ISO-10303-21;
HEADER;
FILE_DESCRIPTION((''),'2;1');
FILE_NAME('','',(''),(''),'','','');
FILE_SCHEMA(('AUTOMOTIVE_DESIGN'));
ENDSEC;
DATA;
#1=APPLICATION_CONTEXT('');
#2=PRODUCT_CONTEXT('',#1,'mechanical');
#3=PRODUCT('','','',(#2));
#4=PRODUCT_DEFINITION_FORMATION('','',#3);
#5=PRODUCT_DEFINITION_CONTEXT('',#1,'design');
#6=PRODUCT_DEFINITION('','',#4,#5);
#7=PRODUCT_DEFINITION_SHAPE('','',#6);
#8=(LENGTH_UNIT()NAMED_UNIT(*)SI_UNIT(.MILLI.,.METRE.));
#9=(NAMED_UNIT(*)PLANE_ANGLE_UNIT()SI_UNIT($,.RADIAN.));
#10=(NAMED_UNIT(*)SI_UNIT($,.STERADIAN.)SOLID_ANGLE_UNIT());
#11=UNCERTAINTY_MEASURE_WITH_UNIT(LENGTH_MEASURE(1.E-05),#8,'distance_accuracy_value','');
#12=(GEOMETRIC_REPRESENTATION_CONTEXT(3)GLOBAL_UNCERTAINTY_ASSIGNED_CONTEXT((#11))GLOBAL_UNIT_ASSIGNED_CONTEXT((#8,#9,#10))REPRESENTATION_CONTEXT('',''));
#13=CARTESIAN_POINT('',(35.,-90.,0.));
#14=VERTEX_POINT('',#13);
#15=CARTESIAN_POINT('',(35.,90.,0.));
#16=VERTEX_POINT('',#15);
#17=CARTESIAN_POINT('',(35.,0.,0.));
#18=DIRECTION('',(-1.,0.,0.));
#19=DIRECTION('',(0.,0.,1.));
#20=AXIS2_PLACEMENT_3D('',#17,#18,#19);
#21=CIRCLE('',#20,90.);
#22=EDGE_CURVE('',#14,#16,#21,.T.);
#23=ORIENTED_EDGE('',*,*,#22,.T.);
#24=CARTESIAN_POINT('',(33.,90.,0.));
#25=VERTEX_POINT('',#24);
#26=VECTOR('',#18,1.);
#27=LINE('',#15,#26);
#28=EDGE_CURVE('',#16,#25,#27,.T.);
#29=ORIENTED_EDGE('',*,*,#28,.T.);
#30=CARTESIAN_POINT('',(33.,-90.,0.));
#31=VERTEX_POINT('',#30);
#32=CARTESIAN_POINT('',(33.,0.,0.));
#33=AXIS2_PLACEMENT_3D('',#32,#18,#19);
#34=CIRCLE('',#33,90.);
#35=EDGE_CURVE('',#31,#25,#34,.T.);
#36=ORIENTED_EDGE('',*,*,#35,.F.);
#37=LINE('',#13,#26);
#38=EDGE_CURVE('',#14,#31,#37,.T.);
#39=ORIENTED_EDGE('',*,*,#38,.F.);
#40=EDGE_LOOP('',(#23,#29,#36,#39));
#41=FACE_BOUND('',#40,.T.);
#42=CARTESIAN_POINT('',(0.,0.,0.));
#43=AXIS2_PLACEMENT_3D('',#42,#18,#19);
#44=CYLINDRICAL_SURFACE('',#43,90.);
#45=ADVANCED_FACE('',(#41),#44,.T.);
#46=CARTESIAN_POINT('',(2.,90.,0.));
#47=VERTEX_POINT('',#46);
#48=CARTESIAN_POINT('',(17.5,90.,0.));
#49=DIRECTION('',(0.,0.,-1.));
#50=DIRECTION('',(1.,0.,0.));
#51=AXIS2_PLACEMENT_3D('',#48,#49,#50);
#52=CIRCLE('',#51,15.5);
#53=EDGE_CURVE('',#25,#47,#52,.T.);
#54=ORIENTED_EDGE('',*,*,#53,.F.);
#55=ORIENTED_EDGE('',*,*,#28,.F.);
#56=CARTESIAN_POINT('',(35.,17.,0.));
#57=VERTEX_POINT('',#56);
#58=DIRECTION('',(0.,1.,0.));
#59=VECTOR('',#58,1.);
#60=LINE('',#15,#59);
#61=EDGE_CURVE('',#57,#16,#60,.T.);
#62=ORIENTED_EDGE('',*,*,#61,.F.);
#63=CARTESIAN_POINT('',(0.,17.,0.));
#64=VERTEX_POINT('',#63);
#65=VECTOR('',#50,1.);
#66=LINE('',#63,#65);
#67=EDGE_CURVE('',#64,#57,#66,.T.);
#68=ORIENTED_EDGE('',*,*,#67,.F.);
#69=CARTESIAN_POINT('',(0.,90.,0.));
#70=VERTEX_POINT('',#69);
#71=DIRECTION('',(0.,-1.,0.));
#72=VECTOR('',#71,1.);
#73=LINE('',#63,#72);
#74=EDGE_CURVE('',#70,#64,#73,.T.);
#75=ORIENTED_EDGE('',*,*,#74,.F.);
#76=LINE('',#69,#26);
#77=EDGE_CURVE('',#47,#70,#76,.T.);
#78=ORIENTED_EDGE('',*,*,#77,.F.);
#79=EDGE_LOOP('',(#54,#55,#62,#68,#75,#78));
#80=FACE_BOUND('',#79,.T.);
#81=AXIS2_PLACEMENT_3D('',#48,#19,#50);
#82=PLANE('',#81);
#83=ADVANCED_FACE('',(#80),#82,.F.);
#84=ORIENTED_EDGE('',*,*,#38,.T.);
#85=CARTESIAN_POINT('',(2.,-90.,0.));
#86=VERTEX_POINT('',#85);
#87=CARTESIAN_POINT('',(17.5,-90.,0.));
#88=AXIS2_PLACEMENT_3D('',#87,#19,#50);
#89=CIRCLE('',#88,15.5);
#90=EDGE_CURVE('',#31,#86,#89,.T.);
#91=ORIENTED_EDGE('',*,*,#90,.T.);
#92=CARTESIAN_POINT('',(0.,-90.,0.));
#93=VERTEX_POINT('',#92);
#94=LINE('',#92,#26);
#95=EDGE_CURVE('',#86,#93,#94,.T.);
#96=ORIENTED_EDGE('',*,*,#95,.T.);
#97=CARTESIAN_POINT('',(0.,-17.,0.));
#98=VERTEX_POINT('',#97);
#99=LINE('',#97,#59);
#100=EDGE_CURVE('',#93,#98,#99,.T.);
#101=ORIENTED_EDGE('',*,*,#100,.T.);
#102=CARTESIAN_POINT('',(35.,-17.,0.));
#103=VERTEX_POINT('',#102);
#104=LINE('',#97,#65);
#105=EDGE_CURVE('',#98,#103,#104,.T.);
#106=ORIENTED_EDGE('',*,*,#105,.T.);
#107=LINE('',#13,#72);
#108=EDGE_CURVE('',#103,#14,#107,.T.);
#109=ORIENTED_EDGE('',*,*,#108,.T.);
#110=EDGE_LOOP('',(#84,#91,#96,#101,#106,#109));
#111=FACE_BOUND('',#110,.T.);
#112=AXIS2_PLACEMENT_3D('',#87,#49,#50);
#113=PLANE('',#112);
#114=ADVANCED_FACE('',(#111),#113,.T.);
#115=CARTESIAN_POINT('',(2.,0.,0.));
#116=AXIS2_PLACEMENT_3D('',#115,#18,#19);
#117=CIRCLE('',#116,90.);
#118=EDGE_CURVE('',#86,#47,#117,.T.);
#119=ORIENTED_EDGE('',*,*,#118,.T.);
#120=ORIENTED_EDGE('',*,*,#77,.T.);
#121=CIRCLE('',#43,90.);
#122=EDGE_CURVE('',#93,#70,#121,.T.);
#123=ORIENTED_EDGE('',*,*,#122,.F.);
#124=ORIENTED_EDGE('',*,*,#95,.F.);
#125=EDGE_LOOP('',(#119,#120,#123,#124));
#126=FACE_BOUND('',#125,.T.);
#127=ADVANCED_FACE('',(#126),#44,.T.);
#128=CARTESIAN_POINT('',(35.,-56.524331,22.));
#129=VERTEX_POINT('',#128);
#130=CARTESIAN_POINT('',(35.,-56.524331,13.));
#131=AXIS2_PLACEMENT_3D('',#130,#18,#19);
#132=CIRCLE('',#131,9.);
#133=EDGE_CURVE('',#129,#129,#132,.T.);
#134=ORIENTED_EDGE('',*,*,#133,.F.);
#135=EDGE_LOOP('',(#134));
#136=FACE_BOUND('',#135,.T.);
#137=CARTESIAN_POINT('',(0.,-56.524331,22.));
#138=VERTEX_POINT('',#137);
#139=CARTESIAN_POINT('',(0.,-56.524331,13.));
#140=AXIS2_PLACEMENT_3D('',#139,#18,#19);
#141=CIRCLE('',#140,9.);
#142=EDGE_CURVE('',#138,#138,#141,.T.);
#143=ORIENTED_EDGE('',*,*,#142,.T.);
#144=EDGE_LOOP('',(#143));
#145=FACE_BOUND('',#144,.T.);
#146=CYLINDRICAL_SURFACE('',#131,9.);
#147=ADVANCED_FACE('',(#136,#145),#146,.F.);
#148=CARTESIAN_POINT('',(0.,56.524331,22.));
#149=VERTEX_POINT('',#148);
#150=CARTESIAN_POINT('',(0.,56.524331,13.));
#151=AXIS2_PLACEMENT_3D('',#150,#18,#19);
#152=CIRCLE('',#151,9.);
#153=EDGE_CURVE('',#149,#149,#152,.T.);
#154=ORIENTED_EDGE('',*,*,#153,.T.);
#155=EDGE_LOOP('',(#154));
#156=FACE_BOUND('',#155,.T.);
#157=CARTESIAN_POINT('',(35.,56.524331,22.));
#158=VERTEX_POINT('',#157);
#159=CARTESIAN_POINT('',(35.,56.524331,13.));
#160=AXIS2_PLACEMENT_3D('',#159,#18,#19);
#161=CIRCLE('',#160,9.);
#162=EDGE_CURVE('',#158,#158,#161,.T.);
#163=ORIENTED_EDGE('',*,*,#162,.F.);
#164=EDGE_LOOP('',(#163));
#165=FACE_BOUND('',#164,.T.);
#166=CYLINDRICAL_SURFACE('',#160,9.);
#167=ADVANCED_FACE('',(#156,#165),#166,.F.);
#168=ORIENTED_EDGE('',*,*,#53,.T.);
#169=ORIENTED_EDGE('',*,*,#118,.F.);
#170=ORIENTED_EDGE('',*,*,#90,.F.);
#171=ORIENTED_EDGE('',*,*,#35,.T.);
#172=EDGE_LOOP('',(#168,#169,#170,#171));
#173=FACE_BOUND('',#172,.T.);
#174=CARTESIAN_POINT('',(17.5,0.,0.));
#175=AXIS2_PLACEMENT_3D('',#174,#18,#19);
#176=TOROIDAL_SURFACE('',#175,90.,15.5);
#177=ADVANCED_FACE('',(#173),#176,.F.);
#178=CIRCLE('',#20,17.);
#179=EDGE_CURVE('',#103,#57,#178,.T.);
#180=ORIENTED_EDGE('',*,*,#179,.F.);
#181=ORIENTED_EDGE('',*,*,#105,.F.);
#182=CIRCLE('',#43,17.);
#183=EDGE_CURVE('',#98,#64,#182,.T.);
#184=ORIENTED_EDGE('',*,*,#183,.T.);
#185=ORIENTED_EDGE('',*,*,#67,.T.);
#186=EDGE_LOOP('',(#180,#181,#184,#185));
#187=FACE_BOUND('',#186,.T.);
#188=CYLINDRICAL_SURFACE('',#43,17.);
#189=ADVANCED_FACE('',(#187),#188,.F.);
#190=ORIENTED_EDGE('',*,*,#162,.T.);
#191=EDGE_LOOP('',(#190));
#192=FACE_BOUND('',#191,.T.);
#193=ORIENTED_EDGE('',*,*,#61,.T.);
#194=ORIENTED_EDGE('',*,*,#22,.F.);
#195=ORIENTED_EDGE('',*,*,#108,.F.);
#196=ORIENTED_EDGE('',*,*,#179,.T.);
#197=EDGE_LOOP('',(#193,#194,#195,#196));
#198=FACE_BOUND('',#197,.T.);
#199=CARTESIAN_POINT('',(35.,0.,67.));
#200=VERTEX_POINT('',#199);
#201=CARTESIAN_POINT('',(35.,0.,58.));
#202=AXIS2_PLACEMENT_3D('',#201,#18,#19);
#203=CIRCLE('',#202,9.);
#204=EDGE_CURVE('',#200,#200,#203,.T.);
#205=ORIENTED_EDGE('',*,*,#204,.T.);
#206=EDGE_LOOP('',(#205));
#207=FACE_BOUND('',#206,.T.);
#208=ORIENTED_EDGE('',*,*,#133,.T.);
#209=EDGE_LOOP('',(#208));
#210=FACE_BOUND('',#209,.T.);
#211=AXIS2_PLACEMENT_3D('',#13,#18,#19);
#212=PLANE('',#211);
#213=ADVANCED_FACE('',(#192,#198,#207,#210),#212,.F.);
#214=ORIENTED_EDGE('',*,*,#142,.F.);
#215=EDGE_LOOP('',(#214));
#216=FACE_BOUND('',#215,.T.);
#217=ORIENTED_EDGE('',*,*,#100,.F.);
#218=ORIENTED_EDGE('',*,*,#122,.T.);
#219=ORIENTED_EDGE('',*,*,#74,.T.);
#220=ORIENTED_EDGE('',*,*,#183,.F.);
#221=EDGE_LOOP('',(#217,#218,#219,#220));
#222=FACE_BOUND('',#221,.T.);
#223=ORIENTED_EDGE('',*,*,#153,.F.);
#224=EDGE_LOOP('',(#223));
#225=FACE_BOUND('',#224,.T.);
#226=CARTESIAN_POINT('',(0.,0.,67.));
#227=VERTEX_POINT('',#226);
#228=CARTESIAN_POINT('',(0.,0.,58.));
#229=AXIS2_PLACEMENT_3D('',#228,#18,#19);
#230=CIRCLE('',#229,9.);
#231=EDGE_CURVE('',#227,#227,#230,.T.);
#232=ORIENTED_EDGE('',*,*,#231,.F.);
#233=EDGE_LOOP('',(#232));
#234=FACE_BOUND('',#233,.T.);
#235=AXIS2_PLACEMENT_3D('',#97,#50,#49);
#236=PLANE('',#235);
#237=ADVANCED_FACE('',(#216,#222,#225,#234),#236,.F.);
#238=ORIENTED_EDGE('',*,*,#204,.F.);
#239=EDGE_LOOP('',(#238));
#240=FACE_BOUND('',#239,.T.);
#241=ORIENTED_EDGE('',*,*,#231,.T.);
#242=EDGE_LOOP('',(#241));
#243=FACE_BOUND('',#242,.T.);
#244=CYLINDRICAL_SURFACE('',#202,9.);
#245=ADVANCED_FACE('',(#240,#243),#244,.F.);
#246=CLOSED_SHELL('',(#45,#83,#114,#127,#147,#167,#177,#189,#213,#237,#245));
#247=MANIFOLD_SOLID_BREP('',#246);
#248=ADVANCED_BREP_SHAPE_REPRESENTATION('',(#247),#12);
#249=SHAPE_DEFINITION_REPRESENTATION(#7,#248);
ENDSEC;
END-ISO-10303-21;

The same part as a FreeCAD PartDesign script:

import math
import FreeCAD as App
import Part
import Sketcher
from FreeCAD import Vector
Q = App.Units.Quantity

doc = App.newDocument("Part")
body = doc.addObject("PartDesign::Body", "Body")

# Sketch on XY plane
sketch1 = body.newObject("Sketcher::SketchObject", "Sketch")
sketch1.AttachmentSupport = (doc.getObject("XY_Plane"), [""])
sketch1.MapMode = "FlatFace"
sketch1.addGeometry([
    Part.LineSegment(Vector(0, 90, 0), Vector(0, 17, 0)),  # 0
    Part.LineSegment(Vector(0, 17, 0), Vector(35, 17, 0)),  # 1
    Part.LineSegment(Vector(35, 17, 0), Vector(35, 90, 0)),  # 2
    Part.LineSegment(Vector(35, 90, 0), Vector(33, 90, 0)),  # 3
    Part.ArcOfCircle(Part.Circle(Vector(17.5, 90, 0), Vector(0, 0, 1), 15.5), math.radians(180), math.radians(360)),  # 4
    Part.LineSegment(Vector(2, 90, 0), Vector(0, 90, 0)),  # 5
], False)
sketch1.addConstraint([
    Sketcher.Constraint("Coincident", 0, 2, 1, 1),
    Sketcher.Constraint("Coincident", 1, 2, 2, 1),
    Sketcher.Constraint("Coincident", 2, 2, 3, 1),
    Sketcher.Constraint("Coincident", 3, 2, 4, 2),
    Sketcher.Constraint("Coincident", 4, 1, 5, 1),
    Sketcher.Constraint("Coincident", 5, 2, 0, 1),
    Sketcher.Constraint("Vertical", 0),
    Sketcher.Constraint("Horizontal", 1),
    Sketcher.Constraint("Vertical", 2),
    Sketcher.Constraint("Horizontal", 3),
    Sketcher.Constraint("Horizontal", 5),
    Sketcher.Constraint("PointOnObject", 0, 2, -2),
    Sketcher.Constraint("Horizontal", 4, 3, 2, 2),
    Sketcher.Constraint("Horizontal", 3, 2, 4, 1),
    Sketcher.Constraint("Equal", 3, 5),
    Sketcher.Constraint("Radius", 4, Q("15.5 mm")),
    Sketcher.Constraint("DistanceX", 1, 1, 1, 2, Q("35 mm")),
    Sketcher.Constraint("DistanceY", 0, 2, 0, 1, Q("73 mm")),
    Sketcher.Constraint("DistanceY", -1, 1, 4, 3, Q("90 mm")),
])
revolution = body.newObject("PartDesign::Revolution", "Revolution")
revolution.Profile = sketch1
revolution.ReferenceAxis = (sketch1, ["H_Axis"])
revolution.Angle = 180

# Sketch on YZ plane
sketch2 = body.newObject("Sketcher::SketchObject", "Sketch001")
sketch2.AttachmentSupport = (doc.getObject("YZ_Plane"), [""])
sketch2.MapMode = "FlatFace"
sketch2.addGeometry([
    Part.Circle(Vector(-56.524331, 13, 0), Vector(0, 0, 1), 9),
    Part.Circle(Vector(0, 58, 0), Vector(0, 0, 1), 9),
    Part.Circle(Vector(56.524331, 13, 0), Vector(0, 0, 1), 9),
], False)
sketch2.addConstraint([
    Sketcher.Constraint("Equal", 0, 1),
    Sketcher.Constraint("Equal", 1, 2),
    Sketcher.Constraint("Symmetric", 0, 3, 2, 3, -2),
    Sketcher.Constraint("PointOnObject", 1, 3, -2),
    Sketcher.Constraint("Diameter", 0, Q("18 mm")),
    Sketcher.Constraint("DistanceY", -1, 1, 0, 3, Q("13 mm")),
    Sketcher.Constraint("DistanceY", -1, 1, 1, 3, Q("58 mm")),
    Sketcher.Constraint("DistanceX", 0, 3, -1, 1, Q("56.524331 mm")),
])
pocket1 = body.newObject("PartDesign::Pocket", "Pocket")
pocket1.Profile = sketch2
pocket1.Type = "ThroughAll"
pocket1.Reversed = True

doc.recompute()
